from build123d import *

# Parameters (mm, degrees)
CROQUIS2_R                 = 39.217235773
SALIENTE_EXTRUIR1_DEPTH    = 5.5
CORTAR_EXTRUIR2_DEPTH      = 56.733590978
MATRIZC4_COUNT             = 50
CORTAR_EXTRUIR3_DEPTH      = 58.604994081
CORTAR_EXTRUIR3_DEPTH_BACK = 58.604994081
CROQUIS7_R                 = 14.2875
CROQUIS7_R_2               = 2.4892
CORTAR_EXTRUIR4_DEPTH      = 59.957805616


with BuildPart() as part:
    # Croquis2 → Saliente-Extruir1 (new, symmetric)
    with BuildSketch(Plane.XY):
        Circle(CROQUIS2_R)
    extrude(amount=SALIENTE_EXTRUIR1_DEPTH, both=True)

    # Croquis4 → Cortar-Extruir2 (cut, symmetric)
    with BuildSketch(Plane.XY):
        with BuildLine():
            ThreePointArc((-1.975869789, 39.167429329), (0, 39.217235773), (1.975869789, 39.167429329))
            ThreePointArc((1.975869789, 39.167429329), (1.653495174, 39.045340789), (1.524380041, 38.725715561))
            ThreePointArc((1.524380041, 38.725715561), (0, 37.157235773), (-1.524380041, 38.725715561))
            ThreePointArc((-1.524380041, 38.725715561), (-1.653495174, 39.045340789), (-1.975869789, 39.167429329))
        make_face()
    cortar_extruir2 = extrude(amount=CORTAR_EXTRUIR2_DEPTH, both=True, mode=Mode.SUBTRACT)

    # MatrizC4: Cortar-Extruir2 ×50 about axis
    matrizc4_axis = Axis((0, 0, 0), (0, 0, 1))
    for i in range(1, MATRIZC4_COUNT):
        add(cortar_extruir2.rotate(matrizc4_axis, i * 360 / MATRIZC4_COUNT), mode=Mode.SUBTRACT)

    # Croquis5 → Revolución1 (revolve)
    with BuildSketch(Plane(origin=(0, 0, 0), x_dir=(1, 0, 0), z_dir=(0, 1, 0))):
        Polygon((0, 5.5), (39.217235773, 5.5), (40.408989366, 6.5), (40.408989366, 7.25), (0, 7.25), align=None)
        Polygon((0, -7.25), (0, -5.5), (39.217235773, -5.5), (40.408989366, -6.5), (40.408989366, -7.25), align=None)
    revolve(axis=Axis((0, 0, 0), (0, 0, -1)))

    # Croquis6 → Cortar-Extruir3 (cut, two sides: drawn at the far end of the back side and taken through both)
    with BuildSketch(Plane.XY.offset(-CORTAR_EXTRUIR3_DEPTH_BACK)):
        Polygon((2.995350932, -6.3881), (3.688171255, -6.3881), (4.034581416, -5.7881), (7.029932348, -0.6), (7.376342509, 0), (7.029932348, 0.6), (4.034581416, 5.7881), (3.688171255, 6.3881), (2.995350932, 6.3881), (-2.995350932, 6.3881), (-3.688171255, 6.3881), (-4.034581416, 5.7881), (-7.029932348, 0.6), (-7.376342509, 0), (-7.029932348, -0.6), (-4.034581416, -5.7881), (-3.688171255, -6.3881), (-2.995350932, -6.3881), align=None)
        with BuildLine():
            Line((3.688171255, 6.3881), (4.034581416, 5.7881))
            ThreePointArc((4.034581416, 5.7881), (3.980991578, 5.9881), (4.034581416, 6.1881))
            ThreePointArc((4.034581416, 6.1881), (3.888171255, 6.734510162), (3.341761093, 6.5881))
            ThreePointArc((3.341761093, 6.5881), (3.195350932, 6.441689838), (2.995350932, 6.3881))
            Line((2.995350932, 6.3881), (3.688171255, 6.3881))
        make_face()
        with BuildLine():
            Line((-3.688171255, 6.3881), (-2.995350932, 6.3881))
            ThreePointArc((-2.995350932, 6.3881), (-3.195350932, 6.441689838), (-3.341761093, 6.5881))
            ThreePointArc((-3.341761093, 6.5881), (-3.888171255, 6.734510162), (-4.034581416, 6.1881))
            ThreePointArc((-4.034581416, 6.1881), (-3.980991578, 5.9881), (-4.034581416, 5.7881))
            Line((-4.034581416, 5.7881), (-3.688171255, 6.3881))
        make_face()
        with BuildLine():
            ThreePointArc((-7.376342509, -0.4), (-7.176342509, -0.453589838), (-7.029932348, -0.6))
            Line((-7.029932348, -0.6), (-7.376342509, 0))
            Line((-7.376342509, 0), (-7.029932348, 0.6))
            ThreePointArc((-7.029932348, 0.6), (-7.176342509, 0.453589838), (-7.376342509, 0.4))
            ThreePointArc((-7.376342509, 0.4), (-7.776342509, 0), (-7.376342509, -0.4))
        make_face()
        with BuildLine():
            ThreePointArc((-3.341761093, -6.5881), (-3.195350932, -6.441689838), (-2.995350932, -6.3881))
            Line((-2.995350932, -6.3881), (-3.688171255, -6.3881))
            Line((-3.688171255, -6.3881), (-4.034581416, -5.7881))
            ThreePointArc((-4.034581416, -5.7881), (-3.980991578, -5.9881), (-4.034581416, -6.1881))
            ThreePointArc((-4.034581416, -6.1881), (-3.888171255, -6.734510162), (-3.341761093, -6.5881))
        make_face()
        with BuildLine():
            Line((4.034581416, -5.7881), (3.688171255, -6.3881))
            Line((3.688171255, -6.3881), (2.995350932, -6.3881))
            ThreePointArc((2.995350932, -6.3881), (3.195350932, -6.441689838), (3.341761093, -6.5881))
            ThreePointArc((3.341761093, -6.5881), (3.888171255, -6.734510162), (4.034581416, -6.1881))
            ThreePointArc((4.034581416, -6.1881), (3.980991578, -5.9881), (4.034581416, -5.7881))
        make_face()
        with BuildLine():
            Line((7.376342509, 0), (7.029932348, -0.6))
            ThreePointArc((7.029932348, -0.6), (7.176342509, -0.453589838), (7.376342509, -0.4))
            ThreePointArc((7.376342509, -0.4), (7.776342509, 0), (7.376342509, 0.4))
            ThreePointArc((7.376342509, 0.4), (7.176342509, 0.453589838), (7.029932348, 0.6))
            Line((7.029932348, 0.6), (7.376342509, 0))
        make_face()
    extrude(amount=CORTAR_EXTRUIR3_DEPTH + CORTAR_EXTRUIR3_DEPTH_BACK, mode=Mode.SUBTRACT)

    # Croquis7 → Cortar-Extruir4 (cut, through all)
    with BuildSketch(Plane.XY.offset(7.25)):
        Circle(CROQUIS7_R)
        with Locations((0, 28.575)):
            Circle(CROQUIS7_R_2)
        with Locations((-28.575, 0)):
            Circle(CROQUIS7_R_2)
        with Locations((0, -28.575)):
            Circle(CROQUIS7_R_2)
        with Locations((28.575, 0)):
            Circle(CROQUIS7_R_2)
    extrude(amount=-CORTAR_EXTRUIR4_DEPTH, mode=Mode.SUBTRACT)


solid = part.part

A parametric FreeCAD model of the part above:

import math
import FreeCAD as App
import Part
import Sketcher
Q = App.Units.Quantity

doc = App.newDocument("Part")
body = doc.addObject("PartDesign::Body", "Body")

# Sketch on XY plane
sketch1 = doc.addObject("Sketcher::SketchObject", "Sketch")
body.addObject(sketch1)
sketch1.AttachmentSupport = (doc.XY_Plane, [""])
sketch1.MapMode = "FlatFace"
sketch1.addGeometry(Part.Circle(App.Vector(0, 0, 0), App.Vector(0, 0, 1), 39), False)
sketch1.addConstraint(Sketcher.Constraint("Coincident", 0, 3, -1, 1))
sketch1.addConstraint(Sketcher.Constraint("Diameter", 0, 78.434472))
pad1 = doc.addObject("PartDesign::Pad", "Pad")
body.addObject(pad1)
pad1.Profile = sketch1
pad1.Length = 11
pad1.Midplane = True

# Sketch on XY plane
sketch2 = doc.addObject("Sketcher::SketchObject", "Sketch001")
body.addObject(sketch2)
sketch2.AttachmentSupport = (doc.XY_Plane, [""])
sketch2.MapMode = "FlatFace"
sketch2.addGeometry(Part.ArcOfCircle(Part.Circle(App.Vector(0, 0, 0), App.Vector(0, 0, 1), 39.22), math.radians(87.11), math.radians(92.89)), False)
sketch2.addGeometry(Part.ArcOfCircle(Part.Circle(App.Vector(-1.95, 38.74, 0), App.Vector(0, 0, 1), 0.43), math.radians(-2), math.radians(93)), False)
sketch2.addGeometry(Part.ArcOfCircle(Part.Circle(App.Vector(0, 38.68, 0), App.Vector(0, 0, 1), 1.52), math.radians(178), math.radians(362)), False)
sketch2.addGeometry(Part.ArcOfCircle(Part.Circle(App.Vector(1.95, 38.74, 0), App.Vector(0, 0, 1), 0.43), math.radians(87), math.radians(182)), False)
sketch2.addConstraint(Sketcher.Constraint("Tangent", 0, 2, 1, 2))
sketch2.addConstraint(Sketcher.Constraint("Tangent", 1, 1, 2, 1))
sketch2.addConstraint(Sketcher.Constraint("Tangent", 2, 2, 3, 2))
sketch2.addConstraint(Sketcher.Constraint("Tangent", 3, 1, 0, 1))
sketch2.addConstraint(Sketcher.Constraint("Coincident", 0, 3, -1, 1))
sketch2.addConstraint(Sketcher.Constraint("Equal", 1, 3))
sketch2.addConstraint(Sketcher.Constraint("PointOnObject", 2, 3, -2))
sketch2.addConstraint(Sketcher.Constraint("Radius", 1, 0.43))
sketch2.addConstraint(Sketcher.Constraint("Radius", 2, 1.525))
sketch2.addConstraint(Sketcher.Constraint("Radius", 0, 39.217236))
sketch2.addConstraint(Sketcher.Constraint("DistanceX", 1, 1, -1, 1, 1.52438))
pocket1 = doc.addObject("PartDesign::Pocket", "Pocket")
body.addObject(pocket1)
pocket1.Profile = sketch2
pocket1.Length = 113.467182
pocket1.Midplane = True
doc.recompute()

polarpattern = doc.addObject("PartDesign::PolarPattern", "PolarPattern")
body.addObject(polarpattern)
polarpattern.Originals = [pocket1]
polarpattern.Axis = (doc.Z_Axis, [""])
polarpattern.Angle = 360
polarpattern.Occurrences = 50
body.Tip = polarpattern

# Sketch on XZ plane
sketch3 = doc.addObject("Sketcher::SketchObject", "Sketch002")
body.addObject(sketch3)
sketch3.AttachmentSupport = (doc.XZ_Plane, [""])
sketch3.MapMode = "FlatFace"
sketch3.addGeometry(Part.LineSegment(App.Vector(0, -5.5, 0), App.Vector(39.2, -5.5, 0)), False)
sketch3.addGeometry(Part.LineSegment(App.Vector(39.2, -5.5, 0), App.Vector(40.4, -6.5, 0)), False)
sketch3.addGeometry(Part.LineSegment(App.Vector(40.4, -6.5, 0), App.Vector(40.4, -7.2, 0)), False)
sketch3.addGeometry(Part.LineSegment(App.Vector(40.4, -7.2, 0), App.Vector(0, -7.2, 0)), False)
sketch3.addGeometry(Part.LineSegment(App.Vector(0, -7.2, 0), App.Vector(0, -5.5, 0)), False)
sketch3.addGeometry(Part.LineSegment(App.Vector(0, 5.5, 0), App.Vector(0, 7.2, 0)), False)
sketch3.addGeometry(Part.LineSegment(App.Vector(0, 7.2, 0), App.Vector(40.4, 7.2, 0)), False)
sketch3.addGeometry(Part.LineSegment(App.Vector(40.4, 7.2, 0), App.Vector(40.4, 6.5, 0)), False)
sketch3.addGeometry(Part.LineSegment(App.Vector(40.4, 6.5, 0), App.Vector(39.2, 5.5, 0)), False)
sketch3.addGeometry(Part.LineSegment(App.Vector(39.2, 5.5, 0), App.Vector(0, 5.5, 0)), False)
sketch3.addConstraint(Sketcher.Constraint("Coincident", 0, 2, 1, 1))
sketch3.addConstraint(Sketcher.Constraint("Coincident", 1, 2, 2, 1))
sketch3.addConstraint(Sketcher.Constraint("Coincident", 2, 2, 3, 1))
sketch3.addConstraint(Sketcher.Constraint("Coincident", 3, 2, 4, 1))
sketch3.addConstraint(Sketcher.Constraint("Coincident", 4, 2, 0, 1))
sketch3.addConstraint(Sketcher.Constraint("Coincident", 5, 2, 6, 1))
sketch3.addConstraint(Sketcher.Constraint("Coincident", 6, 2, 7, 1))
sketch3.addConstraint(Sketcher.Constraint("Coincident", 7, 2, 8, 1))
sketch3.addConstraint(Sketcher.Constraint("Coincident", 8, 2, 9, 1))
sketch3.addConstraint(Sketcher.Constraint("Coincident", 9, 2, 5, 1))
sketch3.addConstraint(Sketcher.Constraint("Horizontal", 0))
sketch3.addConstraint(Sketcher.Constraint("Vertical", 2))
sketch3.addConstraint(Sketcher.Constraint("Horizontal", 3))
sketch3.addConstraint(Sketcher.Constraint("Vertical", 4))
sketch3.addConstraint(Sketcher.Constraint("Vertical", 5))
sketch3.addConstraint(Sketcher.Constraint("Horizontal", 6))
sketch3.addConstraint(Sketcher.Constraint("Vertical", 7))
sketch3.addConstraint(Sketcher.Constraint("Horizontal", 9))
sketch3.addConstraint(Sketcher.Constraint("Symmetric", 3, 2, 5, 2, -1, 1))
sketch3.addConstraint(Sketcher.Constraint("Symmetric", 1, 2, 7, 2, -1))
sketch3.addConstraint(Sketcher.Constraint("Symmetric", 0, 2, 8, 2, -1))
sketch3.addConstraint(Sketcher.Constraint("PointOnObject", 3, 2, -2))
sketch3.addConstraint(Sketcher.Constraint("Angle", 1, Q("-40 deg")))
sketch3.addConstraint(Sketcher.Constraint("DistanceY", 1, 2, 0, 2, 1.0))
sketch3.addConstraint(Sketcher.Constraint("DistanceY", 0, 2, 7, 2, 12.0))
sketch3.addConstraint(Sketcher.Constraint("DistanceY", 2, 2, 2, 1, 0.75))
sketch3.addConstraint(Sketcher.Constraint("DistanceX", 3, 2, 3, 1, 40.408989))
revolution = doc.addObject("PartDesign::Revolution", "Revolution")
body.addObject(revolution)
revolution.Profile = sketch3
revolution.ReferenceAxis = (sketch3, ["V_Axis"])
revolution.Angle = 360

# Sketch on XY plane
sketch4 = doc.addObject("Sketcher::SketchObject", "Sketch003")
body.addObject(sketch4)
sketch4.AttachmentSupport = (doc.XY_Plane, [""])
sketch4.MapMode = "FlatFace"
sketch4.addGeometry(Part.LineSegment(App.Vector(4.03, -5.79, 0), App.Vector(7.03, -0.6, 0)), False)
sketch4.addGeometry(Part.ArcOfCircle(Part.Circle(App.Vector(7.38, -0.8, 0), App.Vector(0, 0, 1), 0.4), math.radians(90), math.radians(150)), False)
sketch4.addGeometry(Part.ArcOfCircle(Part.Circle(App.Vector(7.38, 0, 0), App.Vector(0, 0, 1), 0.4), math.radians(-90), math.radians(90)), False)
sketch4.addGeometry(Part.ArcOfCircle(Part.Circle(App.Vector(7.38, 0.8, 0), App.Vector(0, 0, 1), 0.4), math.radians(-150), math.radians(-90)), False)
sketch4.addGeometry(Part.LineSegment(App.Vector(7.03, 0.6, 0), App.Vector(4.03, 5.79, 0)), False)
sketch4.addGeometry(Part.ArcOfCircle(Part.Circle(App.Vector(4.38, 5.99, 0), App.Vector(0, 0, 1), 0.4), math.radians(150), math.radians(210)), False)
sketch4.addGeometry(Part.ArcOfCircle(Part.Circle(App.Vector(3.69, 6.39, 0), App.Vector(0, 0, 1), 0.4), math.radians(-30), math.radians(150)), False)
sketch4.addGeometry(Part.ArcOfCircle(Part.Circle(App.Vector(3, 6.79, 0), App.Vector(0, 0, 1), 0.4), math.radians(-90), math.radians(-30)), False)
sketch4.addGeometry(Part.LineSegment(App.Vector(3, 6.39, 0), App.Vector(-3, 6.39, 0)), False)
sketch4.addGeometry(Part.ArcOfCircle(Part.Circle(App.Vector(-3, 6.79, 0), App.Vector(0, 0, 1), 0.4), math.radians(-150), math.radians(-90)), False)
sketch4.addGeometry(Part.ArcOfCircle(Part.Circle(App.Vector(-3.69, 6.39, 0), App.Vector(0, 0, 1), 0.4), math.radians(30), math.radians(210)), False)
sketch4.addGeometry(Part.ArcOfCircle(Part.Circle(App.Vector(-4.38, 5.99, 0), App.Vector(0, 0, 1), 0.4), math.radians(-30), math.radians(30)), False)
sketch4.addGeometry(Part.LineSegment(App.Vector(-4.03, 5.79, 0), App.Vector(-7.03, 0.6, 0)), False)
sketch4.addGeometry(Part.ArcOfCircle(Part.Circle(App.Vector(-7.38, 0.8, 0), App.Vector(0, 0, 1), 0.4), math.radians(-90), math.radians(-30)), False)
sketch4.addGeometry(Part.ArcOfCircle(Part.Circle(App.Vector(-7.38, 0, 0), App.Vector(0, 0, 1), 0.4), math.radians(90), math.radians(270)), False)
sketch4.addGeometry(Part.ArcOfCircle(Part.Circle(App.Vector(-7.38, -0.8, 0), App.Vector(0, 0, 1), 0.4), math.radians(30), math.radians(90)), False)
sketch4.addGeometry(Part.LineSegment(App.Vector(-7.03, -0.6, 0), App.Vector(-4.03, -5.79, 0)), False)
sketch4.addGeometry(Part.ArcOfCircle(Part.Circle(App.Vector(-4.38, -5.99, 0), App.Vector(0, 0, 1), 0.4), math.radians(-30), math.radians(30)), False)
sketch4.addGeometry(Part.ArcOfCircle(Part.Circle(App.Vector(-3.69, -6.39, 0), App.Vector(0, 0, 1), 0.4), math.radians(150), math.radians(330)), False)
sketch4.addGeometry(Part.ArcOfCircle(Part.Circle(App.Vector(-3, -6.79, 0), App.Vector(0, 0, 1), 0.4), math.radians(90), math.radians(150)), False)
sketch4.addGeometry(Part.LineSegment(App.Vector(-3, -6.39, 0), App.Vector(3, -6.39, 0)), False)
sketch4.addGeometry(Part.ArcOfCircle(Part.Circle(App.Vector(3, -6.79, 0), App.Vector(0, 0, 1), 0.4), math.radians(30), math.radians(90)), False)
sketch4.addGeometry(Part.ArcOfCircle(Part.Circle(App.Vector(3.69, -6.39, 0), App.Vector(0, 0, 1), 0.4), math.radians(-150), math.radians(30)), False)
sketch4.addGeometry(Part.ArcOfCircle(Part.Circle(App.Vector(4.38, -5.99, 0), App.Vector(0, 0, 1), 0.4), math.radians(150), math.radians(210)), False)
sketch4.addConstraint(Sketcher.Constraint("Tangent", 0, 2, 1, 2))
sketch4.addConstraint(Sketcher.Constraint("Tangent", 1, 1, 2, 1))
sketch4.addConstraint(Sketcher.Constraint("Tangent", 2, 2, 3, 2))
sketch4.addConstraint(Sketcher.Constraint("Tangent", 3, 1, 4, 1))
sketch4.addConstraint(Sketcher.Constraint("Tangent", 4, 2, 5, 2))
sketch4.addConstraint(Sketcher.Constraint("Tangent", 5, 1, 6, 1))
sketch4.addConstraint(Sketcher.Constraint("Tangent", 6, 2, 7, 2))
sketch4.addConstraint(Sketcher.Constraint("Tangent", 7, 1, 8, 1))
sketch4.addConstraint(Sketcher.Constraint("Tangent", 8, 2, 9, 2))
sketch4.addConstraint(Sketcher.Constraint("Tangent", 9, 1, 10, 1))
sketch4.addConstraint(Sketcher.Constraint("Tangent", 10, 2, 11, 2))
sketch4.addConstraint(Sketcher.Constraint("Tangent", 11, 1, 12, 1))
sketch4.addConstraint(Sketcher.Constraint("Tangent", 12, 2, 13, 2))
sketch4.addConstraint(Sketcher.Constraint("Tangent", 13, 1, 14, 1))
sketch4.addConstraint(Sketcher.Constraint("Tangent", 14, 2, 15, 2))
sketch4.addConstraint(Sketcher.Constraint("Tangent", 15, 1, 16, 1))
sketch4.addConstraint(Sketcher.Constraint("Tangent", 16, 2, 17, 2))
sketch4.addConstraint(Sketcher.Constraint("Tangent", 17, 1, 18, 1))
sketch4.addConstraint(Sketcher.Constraint("Tangent", 18, 2, 19, 2))
sketch4.addConstraint(Sketcher.Constraint("Tangent", 19, 1, 20, 1))
sketch4.addConstraint(Sketcher.Constraint("Tangent", 20, 2, 21, 2))
sketch4.addConstraint(Sketcher.Constraint("Tangent", 21, 1, 22, 1))
sketch4.addConstraint(Sketcher.Constraint("Tangent", 22, 2, 23, 2))
sketch4.addConstraint(Sketcher.Constraint("Tangent", 23, 1, 0, 1))
sketch4.addConstraint(Sketcher.Constraint("Horizontal", 8))
sketch4.addConstraint(Sketcher.Constraint("Horizontal", 20))
sketch4.addConstraint(Sketcher.Constraint("Equal", 1, 2))
sketch4.addConstraint(Sketcher.Constraint("Equal", 2, 3))
sketch4.addConstraint(Sketcher.Constraint("Equal", 3, 5))
sketch4.addConstraint(Sketcher.Constraint("Equal", 5, 6))
sketch4.addConstraint(Sketcher.Constraint("Equal", 6, 7))
sketch4.addConstraint(Sketcher.Constraint("Equal", 7, 9))
sketch4.addConstraint(Sketcher.Constraint("Equal", 9, 10))
sketch4.addConstraint(Sketcher.Constraint("Equal", 10, 11))
sketch4.addConstraint(Sketcher.Constraint("Equal", 11, 13))
sketch4.addConstraint(Sketcher.Constraint("Equal", 13, 14))
sketch4.addConstraint(Sketcher.Constraint("Equal", 14, 15))
sketch4.addConstraint(Sketcher.Constraint("Equal", 15, 17))
sketch4.addConstraint(Sketcher.Constraint("Equal", 17, 18))
sketch4.addConstraint(Sketcher.Constraint("Equal", 18, 19))
sketch4.addConstraint(Sketcher.Constraint("Equal", 19, 21))
sketch4.addConstraint(Sketcher.Constraint("Equal", 21, 22))
sketch4.addConstraint(Sketcher.Constraint("Equal", 22, 23))
sketch4.addConstraint(Sketcher.Constraint("Symmetric", 1, 3, 13, 3, -1, 1))
sketch4.addConstraint(Sketcher.Constraint("Symmetric", 5, 3, 17, 3, -1, 1))
sketch4.addConstraint(Sketcher.Constraint("Symmetric", 9, 3, 21, 3, -1, 1))
sketch4.addConstraint(Sketcher.Constraint("Symmetric", 6, 3, 10, 3, -2))
sketch4.addConstraint(Sketcher.Constraint("Symmetric", 3, 3, 13, 3, -2))
sketch4.addConstraint(Sketcher.Constraint("Symmetric", 0, 2, 15, 1, -2))
sketch4.addConstraint(Sketcher.Constraint("Parallel", 0, 12))
sketch4.addConstraint(Sketcher.Constraint("Horizontal", 18, 3, 22, 3))
sketch4.addConstraint(Sketcher.Constraint("Horizontal", 10, 3, 7, 1))
sketch4.addConstraint(Sketcher.Constraint("Horizontal", 22, 3, 19, 1))
sketch4.addConstraint(Sketcher.Constraint("Vertical", 1, 3, 2, 3))
sketch4.addConstraint(Sketcher.Constraint("Vertical", 13, 3, 14, 3))
sketch4.addConstraint(Sketcher.Constraint("Vertical", 4, 2, 5, 1))
sketch4.addConstraint(Sketcher.Constraint("Radius", 1, 0.4))
sketch4.addConstraint(Sketcher.Constraint("Angle", 0, Q("60 deg")))
sketch4.addConstraint(Sketcher.Constraint("DistanceX", 8, 2, 8, 1, 5.990702))
sketch4.addConstraint(Sketcher.Constraint("Distance", 0, 5.990702))
pocket2 = doc.addObject("PartDesign::Pocket", "Pocket001")
body.addObject(pocket2)
pocket2.Profile = sketch4
pocket2.Type = "ThroughAll"
pocket2.Midplane = True

# Sketch on XY plane
sketch5 = doc.addObject("Sketcher::SketchObject", "Sketch004")
body.addObject(sketch5)
sketch5.AttachmentSupport = (doc.XY_Plane, [""])
sketch5.MapMode = "FlatFace"
sketch5.AttachmentOffset = App.Placement(App.Vector(0, 0, 7.25), App.Rotation())
sketch5.addGeometry(Part.Circle(App.Vector(0, 0, 0), App.Vector(0, 0, 1), 14.3), False)
sketch5.addGeometry(Part.Circle(App.Vector(0, 28.6, 0), App.Vector(0, 0, 1), 2.5), False)
sketch5.addGeometry(Part.Circle(App.Vector(-28.6, 0, 0), App.Vector(0, 0, 1), 2.5), False)
sketch5.addGeometry(Part.Circle(App.Vector(0, -28.6, 0), App.Vector(0, 0, 1), 2.5), False)
sketch5.addGeometry(Part.Circle(App.Vector(28.6, 0, 0), App.Vector(0, 0, 1), 2.5), False)
sketch5.addConstraint(Sketcher.Constraint("Coincident", 0, 3, -1, 1))
sketch5.addConstraint(Sketcher.Constraint("Equal", 1, 2))
sketch5.addConstraint(Sketcher.Constraint("Equal", 2, 3))
sketch5.addConstraint(Sketcher.Constraint("Equal", 3, 4))
sketch5.addConstraint(Sketcher.Constraint("Symmetric", 1, 3, 3, 3, -1, 1))
sketch5.addConstraint(Sketcher.Constraint("Symmetric", 2, 3, 4, 3, -1, 1))
sketch5.addConstraint(Sketcher.Constraint("PointOnObject", 1, 3, -2))
sketch5.addConstraint(Sketcher.Constraint("PointOnObject", 2, 3, -1))
sketch5.addConstraint(Sketcher.Constraint("Diameter", 0, 28.575))
sketch5.addConstraint(Sketcher.Constraint("Diameter", 1, 4.9784))
sketch5.addConstraint(Sketcher.Constraint("DistanceY", 3, 3, 1, 3, 57.15))
sketch5.addConstraint(Sketcher.Constraint("DistanceX", 2, 3, 4, 3, 57.15))
pocket3 = doc.addObject("PartDesign::Pocket", "Pocket002")
body.addObject(pocket3)
pocket3.Profile = sketch5
pocket3.Type = "ThroughAll"

doc.recompute()
